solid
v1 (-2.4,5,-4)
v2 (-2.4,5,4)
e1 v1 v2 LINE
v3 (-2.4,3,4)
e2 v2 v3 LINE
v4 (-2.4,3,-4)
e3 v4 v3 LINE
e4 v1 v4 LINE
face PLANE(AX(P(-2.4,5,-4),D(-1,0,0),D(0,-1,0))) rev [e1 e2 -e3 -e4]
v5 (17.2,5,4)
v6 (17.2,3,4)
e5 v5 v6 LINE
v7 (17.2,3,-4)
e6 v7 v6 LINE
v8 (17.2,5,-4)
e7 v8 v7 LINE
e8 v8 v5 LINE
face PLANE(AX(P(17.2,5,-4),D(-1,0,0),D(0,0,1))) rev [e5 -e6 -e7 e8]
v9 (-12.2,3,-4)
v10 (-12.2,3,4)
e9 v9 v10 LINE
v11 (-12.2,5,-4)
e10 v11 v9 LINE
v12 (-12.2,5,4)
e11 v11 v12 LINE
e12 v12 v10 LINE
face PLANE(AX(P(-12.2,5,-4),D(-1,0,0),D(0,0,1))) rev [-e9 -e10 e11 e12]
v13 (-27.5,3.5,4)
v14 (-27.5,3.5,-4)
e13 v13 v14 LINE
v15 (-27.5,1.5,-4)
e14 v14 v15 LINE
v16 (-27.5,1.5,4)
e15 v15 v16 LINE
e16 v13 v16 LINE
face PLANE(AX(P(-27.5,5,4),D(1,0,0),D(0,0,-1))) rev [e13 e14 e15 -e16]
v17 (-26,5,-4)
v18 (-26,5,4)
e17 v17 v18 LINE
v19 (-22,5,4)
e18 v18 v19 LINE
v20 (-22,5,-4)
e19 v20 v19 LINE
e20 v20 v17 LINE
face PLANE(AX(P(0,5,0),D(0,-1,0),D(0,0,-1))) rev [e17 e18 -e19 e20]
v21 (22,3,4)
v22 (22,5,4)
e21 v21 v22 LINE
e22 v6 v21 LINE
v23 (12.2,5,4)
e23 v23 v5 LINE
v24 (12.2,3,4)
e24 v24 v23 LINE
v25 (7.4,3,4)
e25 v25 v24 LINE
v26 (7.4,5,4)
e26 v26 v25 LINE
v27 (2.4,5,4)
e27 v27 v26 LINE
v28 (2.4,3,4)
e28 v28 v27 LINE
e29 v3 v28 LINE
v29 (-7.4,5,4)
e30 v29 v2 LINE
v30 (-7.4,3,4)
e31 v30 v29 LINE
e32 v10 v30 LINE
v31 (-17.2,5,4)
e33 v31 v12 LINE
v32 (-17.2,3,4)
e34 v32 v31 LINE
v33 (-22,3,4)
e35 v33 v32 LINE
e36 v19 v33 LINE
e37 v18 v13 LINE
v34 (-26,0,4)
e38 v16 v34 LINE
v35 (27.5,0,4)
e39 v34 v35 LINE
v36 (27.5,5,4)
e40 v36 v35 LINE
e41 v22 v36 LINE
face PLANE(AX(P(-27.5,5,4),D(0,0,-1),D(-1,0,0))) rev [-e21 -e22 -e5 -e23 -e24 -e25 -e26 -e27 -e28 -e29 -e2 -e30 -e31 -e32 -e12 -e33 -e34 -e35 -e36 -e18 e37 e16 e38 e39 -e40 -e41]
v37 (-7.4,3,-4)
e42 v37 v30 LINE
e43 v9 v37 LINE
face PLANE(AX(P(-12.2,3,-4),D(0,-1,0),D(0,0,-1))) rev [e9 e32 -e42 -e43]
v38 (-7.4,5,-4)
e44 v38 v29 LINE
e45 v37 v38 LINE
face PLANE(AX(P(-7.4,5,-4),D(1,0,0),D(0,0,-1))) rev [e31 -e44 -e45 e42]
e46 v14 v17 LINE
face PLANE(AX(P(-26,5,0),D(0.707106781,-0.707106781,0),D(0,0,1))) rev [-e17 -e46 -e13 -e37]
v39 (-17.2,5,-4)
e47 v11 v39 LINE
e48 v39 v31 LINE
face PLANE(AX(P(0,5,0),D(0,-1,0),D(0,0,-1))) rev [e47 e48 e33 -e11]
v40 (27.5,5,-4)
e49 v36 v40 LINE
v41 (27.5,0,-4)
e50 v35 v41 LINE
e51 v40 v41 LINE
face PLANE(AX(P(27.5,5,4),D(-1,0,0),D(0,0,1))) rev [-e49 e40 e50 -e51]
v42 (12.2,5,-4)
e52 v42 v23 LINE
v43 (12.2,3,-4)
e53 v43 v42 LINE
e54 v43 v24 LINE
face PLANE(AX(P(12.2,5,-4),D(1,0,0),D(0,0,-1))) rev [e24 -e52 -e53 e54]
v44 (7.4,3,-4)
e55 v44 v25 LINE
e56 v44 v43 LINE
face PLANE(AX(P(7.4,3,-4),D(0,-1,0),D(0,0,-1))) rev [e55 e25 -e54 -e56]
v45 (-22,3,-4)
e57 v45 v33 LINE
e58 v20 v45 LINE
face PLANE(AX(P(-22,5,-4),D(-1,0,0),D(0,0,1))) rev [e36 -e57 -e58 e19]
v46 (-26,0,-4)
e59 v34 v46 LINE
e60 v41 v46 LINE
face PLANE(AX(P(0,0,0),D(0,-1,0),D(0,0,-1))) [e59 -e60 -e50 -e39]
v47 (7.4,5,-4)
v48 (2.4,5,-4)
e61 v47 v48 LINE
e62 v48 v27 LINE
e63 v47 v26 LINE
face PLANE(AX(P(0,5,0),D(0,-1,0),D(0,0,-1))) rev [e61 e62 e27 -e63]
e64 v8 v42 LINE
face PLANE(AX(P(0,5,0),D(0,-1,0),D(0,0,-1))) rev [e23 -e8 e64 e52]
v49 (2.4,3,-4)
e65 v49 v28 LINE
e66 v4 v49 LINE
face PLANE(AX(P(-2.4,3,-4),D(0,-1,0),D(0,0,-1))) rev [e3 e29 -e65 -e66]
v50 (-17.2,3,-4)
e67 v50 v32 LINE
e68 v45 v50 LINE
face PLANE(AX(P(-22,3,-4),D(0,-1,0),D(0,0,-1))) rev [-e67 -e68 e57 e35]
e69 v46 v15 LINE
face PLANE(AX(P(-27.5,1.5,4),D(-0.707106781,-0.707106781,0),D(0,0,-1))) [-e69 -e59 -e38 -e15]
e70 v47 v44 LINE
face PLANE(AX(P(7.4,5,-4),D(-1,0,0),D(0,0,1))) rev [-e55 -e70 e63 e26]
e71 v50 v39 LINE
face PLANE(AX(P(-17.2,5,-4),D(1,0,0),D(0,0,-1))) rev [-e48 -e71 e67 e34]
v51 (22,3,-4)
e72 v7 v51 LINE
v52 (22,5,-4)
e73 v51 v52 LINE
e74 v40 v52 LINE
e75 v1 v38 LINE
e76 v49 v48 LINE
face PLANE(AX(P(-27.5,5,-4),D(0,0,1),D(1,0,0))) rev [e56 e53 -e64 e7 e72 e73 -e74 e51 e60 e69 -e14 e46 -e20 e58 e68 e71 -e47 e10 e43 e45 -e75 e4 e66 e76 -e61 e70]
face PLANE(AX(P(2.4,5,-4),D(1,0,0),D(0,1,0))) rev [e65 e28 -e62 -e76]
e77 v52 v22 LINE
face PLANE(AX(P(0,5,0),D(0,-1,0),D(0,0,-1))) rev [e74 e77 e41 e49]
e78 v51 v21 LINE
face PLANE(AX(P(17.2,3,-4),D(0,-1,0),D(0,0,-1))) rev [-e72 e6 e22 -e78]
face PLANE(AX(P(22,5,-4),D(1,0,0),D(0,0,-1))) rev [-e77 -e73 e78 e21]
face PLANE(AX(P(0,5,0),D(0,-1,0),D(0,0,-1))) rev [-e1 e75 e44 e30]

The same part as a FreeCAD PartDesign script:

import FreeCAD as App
import Part
import Sketcher
from FreeCAD import Vector
Q = App.Units.Quantity


def edges_at(feature, points):
    """Names of the edges that pass closest to the given points."""
    edges = feature.Shape.Edges
    near = lambda p: min(range(len(edges)), key=lambda i: edges[i].distToShape(Part.Vertex(*p))[0])
    return sorted({f"Edge{near(p) + 1}" for p in points})

doc = App.newDocument("Part")
params = doc.addObject("Spreadsheet::Sheet", "Params")
for row, (alias, value) in enumerate([
    ("sketch1_width", "55 mm"),
    ("sketch1_height", "8 mm"),
    ("pad1_length", "5 mm"),
    ("sketch2_height", "2 mm"),
    ("sketch2_width", "4.8 mm"),
    ("chamfer_size", "1.5 mm"),
], start=1):
    params.set(f"A{row}", alias)
    params.set(f"B{row}", "=" + value)
    params.setAlias(f"B{row}", alias)

body = doc.addObject("PartDesign::Body", "Body")

sketch1 = body.newObject("Sketcher::SketchObject", "Sketch")
sketch1.AttachmentSupport = (doc.getObject("XZ_Plane"), [""])
sketch1.MapMode = "FlatFace"
sketch1.addGeometry(Part.LineSegment(Vector(-28, -4, 0), Vector(-28, 4, 0)), False)
sketch1.addGeometry(Part.LineSegment(Vector(-28, 4, 0), Vector(28, 4, 0)), False)
sketch1.addGeometry(Part.LineSegment(Vector(28, 4, 0), Vector(28, -4, 0)), False)
sketch1.addGeometry(Part.LineSegment(Vector(28, -4, 0), Vector(-28, -4, 0)), False)
sketch1.addConstraint(Sketcher.Constraint("Coincident", 0, 2, 1, 1))
sketch1.addConstraint(Sketcher.Constraint("Coincident", 1, 2, 2, 1))
sketch1.addConstraint(Sketcher.Constraint("Coincident", 2, 2, 3, 1))
sketch1.addConstraint(Sketcher.Constraint("Coincident", 3, 2, 0, 1))
sketch1.addConstraint(Sketcher.Constraint("Vertical", 0))
sketch1.addConstraint(Sketcher.Constraint("Horizontal", 1))
sketch1.addConstraint(Sketcher.Constraint("Vertical", 2))
sketch1.addConstraint(Sketcher.Constraint("Horizontal", 3))
sketch1.addConstraint(Sketcher.Constraint("Symmetric", 0, 2, 2, 2, -1, 1))
sketch1.addConstraint(Sketcher.Constraint("DistanceX", 1, 1, 1, 2, Q("55 mm")))
sketch1.addConstraint(Sketcher.Constraint("DistanceY", 0, 1, 0, 2, Q("8 mm")))
sketch1.setExpression("Constraints[9]", "Params.sketch1_width")
sketch1.setExpression("Constraints[10]", "Params.sketch1_height")
pad1 = body.newObject("PartDesign::Pad", "Pad")
pad1.Profile = sketch1
pad1.setExpression("Length", "Params.pad1_length")
pad1.Reversed = True

sketch2 = body.newObject("Sketcher::SketchObject", "Sketch001")
sketch2.AttachmentSupport = (doc.getObject("XY_Plane"), [""])
sketch2.MapMode = "FlatFace"
sketch2.AttachmentOffset = App.Placement(Vector(0, 0, 4), App.Rotation())
sketch2.addGeometry(Part.LineSegment(Vector(-22, 5, 0), Vector(-22, 3, 0)), False)
sketch2.addGeometry(Part.LineSegment(Vector(-22, 3, 0), Vector(-17.2, 3, 0)), False)
sketch2.addGeometry(Part.LineSegment(Vector(-17.2, 3, 0), Vector(-17.2, 5, 0)), False)
sketch2.addGeometry(Part.LineSegment(Vector(-17.2, 5, 0), Vector(-22, 5, 0)), False)
sketch2.addGeometry(Part.LineSegment(Vector(-12.2, 5, 0), Vector(-12.2, 3, 0)), False)
sketch2.addGeometry(Part.LineSegment(Vector(-12.2, 3, 0), Vector(-7.4, 3, 0)), False)
sketch2.addGeometry(Part.LineSegment(Vector(-7.4, 3, 0), Vector(-7.4, 5, 0)), False)
sketch2.addGeometry(Part.LineSegment(Vector(-7.4, 5, 0), Vector(-12.2, 5, 0)), False)
sketch2.addGeometry(Part.LineSegment(Vector(-2.4, 5, 0), Vector(-2.4, 3, 0)), False)
sketch2.addGeometry(Part.LineSegment(Vector(-2.4, 3, 0), Vector(2.4, 3, 0)), False)
sketch2.addGeometry(Part.LineSegment(Vector(2.4, 3, 0), Vector(2.4, 5, 0)), False)
sketch2.addGeometry(Part.LineSegment(Vector(2.4, 5, 0), Vector(-2.4, 5, 0)), False)
sketch2.addGeometry(Part.LineSegment(Vector(7.4, 5, 0), Vector(7.4, 3, 0)), False)
sketch2.addGeometry(Part.LineSegment(Vector(7.4, 3, 0), Vector(12.2, 3, 0)), False)
sketch2.addGeometry(Part.LineSegment(Vector(12.2, 3, 0), Vector(12.2, 5, 0)), False)
sketch2.addGeometry(Part.LineSegment(Vector(12.2, 5, 0), Vector(7.4, 5, 0)), False)
sketch2.addGeometry(Part.LineSegment(Vector(17.2, 5, 0), Vector(17.2, 3, 0)), False)
sketch2.addGeometry(Part.LineSegment(Vector(17.2, 3, 0), Vector(22, 3, 0)), False)
sketch2.addGeometry(Part.LineSegment(Vector(22, 3, 0), Vector(22, 5, 0)), False)
sketch2.addGeometry(Part.LineSegment(Vector(22, 5, 0), Vector(17.2, 5, 0)), False)
sketch2.addConstraint(Sketcher.Constraint("Coincident", 0, 2, 1, 1))
sketch2.addConstraint(Sketcher.Constraint("Coincident", 1, 2, 2, 1))
sketch2.addConstraint(Sketcher.Constraint("Coincident", 2, 2, 3, 1))
sketch2.addConstraint(Sketcher.Constraint("Coincident", 3, 2, 0, 1))
sketch2.addConstraint(Sketcher.Constraint("Coincident", 4, 2, 5, 1))
sketch2.addConstraint(Sketcher.Constraint("Coincident", 5, 2, 6, 1))
sketch2.addConstraint(Sketcher.Constraint("Coincident", 6, 2, 7, 1))
sketch2.addConstraint(Sketcher.Constraint("Coincident", 7, 2, 4, 1))
sketch2.addConstraint(Sketcher.Constraint("Coincident", 8, 2, 9, 1))
sketch2.addConstraint(Sketcher.Constraint("Coincident", 9, 2, 10, 1))
sketch2.addConstraint(Sketcher.Constraint("Coincident", 10, 2, 11, 1))
sketch2.addConstraint(Sketcher.Constraint("Coincident", 11, 2, 8, 1))
sketch2.addConstraint(Sketcher.Constraint("Coincident", 12, 2, 13, 1))
sketch2.addConstraint(Sketcher.Constraint("Coincident", 13, 2, 14, 1))
sketch2.addConstraint(Sketcher.Constraint("Coincident", 14, 2, 15, 1))
sketch2.addConstraint(Sketcher.Constraint("Coincident", 15, 2, 12, 1))
sketch2.addConstraint(Sketcher.Constraint("Coincident", 16, 2, 17, 1))
sketch2.addConstraint(Sketcher.Constraint("Coincident", 17, 2, 18, 1))
sketch2.addConstraint(Sketcher.Constraint("Coincident", 18, 2, 19, 1))
sketch2.addConstraint(Sketcher.Constraint("Coincident", 19, 2, 16, 1))
sketch2.addConstraint(Sketcher.Constraint("Vertical", 0))
sketch2.addConstraint(Sketcher.Constraint("Horizontal", 1))
sketch2.addConstraint(Sketcher.Constraint("Vertical", 2))
sketch2.addConstraint(Sketcher.Constraint("Horizontal", 3))
sketch2.addConstraint(Sketcher.Constraint("Vertical", 4))
sketch2.addConstraint(Sketcher.Constraint("Horizontal", 5))
sketch2.addConstraint(Sketcher.Constraint("Vertical", 6))
sketch2.addConstraint(Sketcher.Constraint("Horizontal", 7))
sketch2.addConstraint(Sketcher.Constraint("Vertical", 8))
sketch2.addConstraint(Sketcher.Constraint("Horizontal", 9))
sketch2.addConstraint(Sketcher.Constraint("Vertical", 10))
sketch2.addConstraint(Sketcher.Constraint("Horizontal", 11))
sketch2.addConstraint(Sketcher.Constraint("Vertical", 12))
sketch2.addConstraint(Sketcher.Constraint("Horizontal", 13))
sketch2.addConstraint(Sketcher.Constraint("Vertical", 14))
sketch2.addConstraint(Sketcher.Constraint("Horizontal", 15))
sketch2.addConstraint(Sketcher.Constraint("Vertical", 16))
sketch2.addConstraint(Sketcher.Constraint("Horizontal", 17))
sketch2.addConstraint(Sketcher.Constraint("Vertical", 18))
sketch2.addConstraint(Sketcher.Constraint("Horizontal", 19))
sketch2.addConstraint(Sketcher.Constraint("Symmetric", 5, 2, 12, 2, -2))
sketch2.addConstraint(Sketcher.Constraint("Symmetric", 7, 2, 14, 2, -2))
sketch2.addConstraint(Sketcher.Constraint("Symmetric", 1, 2, 16, 2, -2))
sketch2.addConstraint(Sketcher.Constraint("Symmetric", 3, 2, 18, 2, -2))
sketch2.addConstraint(Sketcher.Constraint("Horizontal", 1, 2, 4, 2))
sketch2.addConstraint(Sketcher.Constraint("Horizontal", 3, 2, 6, 2))
sketch2.addConstraint(Sketcher.Constraint("Horizontal", 5, 2, 8, 2))
sketch2.addConstraint(Sketcher.Constraint("Horizontal", 7, 2, 10, 2))
sketch2.addConstraint(Sketcher.Constraint("Equal", 3, 5))
sketch2.addConstraint(Sketcher.Constraint("Equal", 7, 9))
sketch2.addConstraint(Sketcher.Constraint("DistanceY", 0, 2, 0, 1, Q("2 mm")))
sketch2.addConstraint(Sketcher.Constraint("DistanceX", 1, 1, 1, 2, Q("4.8 mm")))
sketch2.addConstraint(Sketcher.Constraint("DistanceX", 0, 2, -1, 1, Q("22 mm")))
sketch2.addConstraint(Sketcher.Constraint("DistanceY", -1, 1, 0, 2, Q("3 mm")))
sketch2.addConstraint(Sketcher.Constraint("DistanceX", 1, 2, 4, 2, Q("5 mm")))
sketch2.addConstraint(Sketcher.Constraint("DistanceX", 5, 2, 8, 2, Q("5 mm")))
sketch2.setExpression("Constraints[50]", "Params.sketch2_height")
sketch2.setExpression("Constraints[51]", "Params.sketch2_width")
pocket1 = body.newObject("PartDesign::Pocket", "Pocket")
pocket1.Profile = sketch2
pocket1.Type = "ThroughAll"
doc.recompute()

chamfer = body.newObject("PartDesign::Chamfer", "Chamfer")
chamfer.Base = (pocket1, edges_at(pocket1, [(-27.5, 5, 0), (-27.5, 0, 0)]))
chamfer.setExpression("Size", "Params.chamfer_size")

doc.recompute()
